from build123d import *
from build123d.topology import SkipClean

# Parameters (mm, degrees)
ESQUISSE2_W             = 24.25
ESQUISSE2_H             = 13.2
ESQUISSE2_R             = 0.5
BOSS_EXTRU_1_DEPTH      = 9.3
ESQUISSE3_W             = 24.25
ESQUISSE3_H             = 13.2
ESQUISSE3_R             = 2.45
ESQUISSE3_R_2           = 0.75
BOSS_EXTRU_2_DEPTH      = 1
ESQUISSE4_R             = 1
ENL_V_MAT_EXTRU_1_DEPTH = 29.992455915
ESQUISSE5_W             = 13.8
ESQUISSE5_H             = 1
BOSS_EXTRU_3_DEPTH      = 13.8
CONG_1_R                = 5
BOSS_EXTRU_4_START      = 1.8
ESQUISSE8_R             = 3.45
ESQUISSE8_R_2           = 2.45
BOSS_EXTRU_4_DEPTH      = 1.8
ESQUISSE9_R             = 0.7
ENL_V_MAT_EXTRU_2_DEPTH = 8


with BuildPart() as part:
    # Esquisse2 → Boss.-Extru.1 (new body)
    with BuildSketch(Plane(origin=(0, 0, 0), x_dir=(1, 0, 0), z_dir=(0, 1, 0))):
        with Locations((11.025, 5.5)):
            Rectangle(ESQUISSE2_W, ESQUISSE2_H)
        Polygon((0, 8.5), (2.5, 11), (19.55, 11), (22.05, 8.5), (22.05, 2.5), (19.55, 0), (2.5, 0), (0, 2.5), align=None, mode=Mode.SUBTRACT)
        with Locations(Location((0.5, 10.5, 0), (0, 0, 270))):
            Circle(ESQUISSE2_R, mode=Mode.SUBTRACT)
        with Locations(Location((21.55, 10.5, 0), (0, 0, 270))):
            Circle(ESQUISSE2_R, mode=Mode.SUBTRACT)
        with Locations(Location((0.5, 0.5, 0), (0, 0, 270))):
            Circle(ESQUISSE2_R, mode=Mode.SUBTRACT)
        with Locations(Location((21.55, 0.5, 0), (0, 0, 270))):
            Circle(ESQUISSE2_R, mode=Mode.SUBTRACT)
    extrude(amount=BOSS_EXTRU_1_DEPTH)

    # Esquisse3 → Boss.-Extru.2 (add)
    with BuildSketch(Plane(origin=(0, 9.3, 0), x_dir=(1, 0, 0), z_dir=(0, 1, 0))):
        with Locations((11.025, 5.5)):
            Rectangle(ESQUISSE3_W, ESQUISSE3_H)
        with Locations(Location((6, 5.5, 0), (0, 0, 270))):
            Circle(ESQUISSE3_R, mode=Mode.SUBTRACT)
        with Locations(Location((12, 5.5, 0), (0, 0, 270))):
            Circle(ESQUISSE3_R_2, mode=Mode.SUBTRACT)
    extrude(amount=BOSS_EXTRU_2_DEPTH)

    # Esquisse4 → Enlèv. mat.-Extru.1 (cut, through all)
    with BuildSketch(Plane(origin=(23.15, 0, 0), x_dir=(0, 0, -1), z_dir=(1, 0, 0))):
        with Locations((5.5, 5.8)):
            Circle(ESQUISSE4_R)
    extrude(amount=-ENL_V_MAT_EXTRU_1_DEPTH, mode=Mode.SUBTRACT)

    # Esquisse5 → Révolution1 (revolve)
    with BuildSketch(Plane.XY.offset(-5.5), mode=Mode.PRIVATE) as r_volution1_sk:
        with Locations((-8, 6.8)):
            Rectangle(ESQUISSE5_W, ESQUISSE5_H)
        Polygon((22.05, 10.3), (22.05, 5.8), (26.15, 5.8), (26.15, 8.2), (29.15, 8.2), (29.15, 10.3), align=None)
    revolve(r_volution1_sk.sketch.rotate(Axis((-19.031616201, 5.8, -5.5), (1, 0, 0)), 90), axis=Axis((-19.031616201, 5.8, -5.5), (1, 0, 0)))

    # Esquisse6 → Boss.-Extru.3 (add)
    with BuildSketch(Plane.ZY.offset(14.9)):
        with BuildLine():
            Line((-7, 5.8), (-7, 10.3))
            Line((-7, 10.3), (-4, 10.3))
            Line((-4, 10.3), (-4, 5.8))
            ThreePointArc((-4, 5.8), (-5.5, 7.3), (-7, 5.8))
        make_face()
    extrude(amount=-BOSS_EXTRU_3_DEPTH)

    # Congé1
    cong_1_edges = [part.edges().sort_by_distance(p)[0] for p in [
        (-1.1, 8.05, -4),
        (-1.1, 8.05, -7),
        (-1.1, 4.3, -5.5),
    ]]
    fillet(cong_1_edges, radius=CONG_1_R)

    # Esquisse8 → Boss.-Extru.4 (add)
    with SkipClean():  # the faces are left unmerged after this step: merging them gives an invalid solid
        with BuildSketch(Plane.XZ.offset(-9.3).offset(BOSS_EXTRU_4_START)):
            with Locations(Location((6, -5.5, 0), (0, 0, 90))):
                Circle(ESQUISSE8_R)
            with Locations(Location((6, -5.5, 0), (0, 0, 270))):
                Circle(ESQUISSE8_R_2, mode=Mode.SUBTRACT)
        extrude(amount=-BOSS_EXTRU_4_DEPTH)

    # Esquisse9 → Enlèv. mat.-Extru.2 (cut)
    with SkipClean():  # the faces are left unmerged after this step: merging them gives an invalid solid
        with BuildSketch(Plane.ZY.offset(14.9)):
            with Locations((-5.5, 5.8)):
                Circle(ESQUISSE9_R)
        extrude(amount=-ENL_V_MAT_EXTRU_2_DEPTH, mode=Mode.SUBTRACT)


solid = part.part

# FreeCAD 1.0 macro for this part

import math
import FreeCAD as App
import Part
import Sketcher
from FreeCAD import Vector


def edges_at(feature, points):
    """Names of the edges that pass closest to the given points."""
    edges = feature.Shape.Edges
    near = lambda p: min(range(len(edges)), key=lambda i: edges[i].distToShape(Part.Vertex(*p))[0])
    return sorted({f"Edge{near(p) + 1}" for p in points})

doc = App.newDocument("Part")
body = doc.addObject("PartDesign::Body", "Body")

sketch1 = body.newObject("Sketcher::SketchObject", "Sketch")
sketch1.AttachmentSupport = (doc.getObject("XZ_Plane"), [""])
sketch1.MapMode = "FlatFace"
sketch1.addGeometry(Part.LineSegment(Vector(-1.1, -12.1, 0), Vector(-1.1, 1.1, 0)), False)
sketch1.addGeometry(Part.LineSegment(Vector(-1.1, 1.1, 0), Vector(23.1, 1.1, 0)), False)
sketch1.addGeometry(Part.LineSegment(Vector(23.1, 1.1, 0), Vector(23.1, -12.1, 0)), False)
sketch1.addGeometry(Part.LineSegment(Vector(23.1, -12.1, 0), Vector(-1.1, -12.1, 0)), False)
sketch1.addGeometry(Part.Circle(Vector(0.5, -0.5, 0), Vector(0, 0, 1), 0.5), False)
sketch1.addGeometry(Part.Circle(Vector(21.6, -0.5, 0), Vector(0, 0, 1), 0.5), False)
sketch1.addGeometry(Part.Circle(Vector(0.5, -10.5, 0), Vector(0, 0, 1), 0.5), False)
sketch1.addGeometry(Part.LineSegment(Vector(0, -2.5, 0), Vector(0, -8.5, 0)), False)
sketch1.addGeometry(Part.LineSegment(Vector(0, -8.5, 0), Vector(2.5, -11, 0)), False)
sketch1.addGeometry(Part.LineSegment(Vector(2.5, -11, 0), Vector(19.6, -11, 0)), False)
sketch1.addGeometry(Part.LineSegment(Vector(19.6, -11, 0), Vector(22.1, -8.5, 0)), False)
sketch1.addGeometry(Part.LineSegment(Vector(22.1, -8.5, 0), Vector(22.1, -2.5, 0)), False)
sketch1.addGeometry(Part.LineSegment(Vector(22.1, -2.5, 0), Vector(19.6, 0, 0)), False)
sketch1.addGeometry(Part.LineSegment(Vector(19.6, 0, 0), Vector(2.5, 0, 0)), False)
sketch1.addGeometry(Part.LineSegment(Vector(2.5, 0, 0), Vector(0, -2.5, 0)), False)
sketch1.addGeometry(Part.Circle(Vector(21.6, -10.5, 0), Vector(0, 0, 1), 0.5), False)
sketch1.addConstraint(Sketcher.Constraint("Coincident", 0, 2, 1, 1))
sketch1.addConstraint(Sketcher.Constraint("Coincident", 1, 2, 2, 1))
sketch1.addConstraint(Sketcher.Constraint("Coincident", 2, 2, 3, 1))
sketch1.addConstraint(Sketcher.Constraint("Coincident", 3, 2, 0, 1))
sketch1.addConstraint(Sketcher.Constraint("Coincident", 7, 2, 8, 1))
sketch1.addConstraint(Sketcher.Constraint("Coincident", 8, 2, 9, 1))
sketch1.addConstraint(Sketcher.Constraint("Coincident", 9, 2, 10, 1))
sketch1.addConstraint(Sketcher.Constraint("Coincident", 10, 2, 11, 1))
sketch1.addConstraint(Sketcher.Constraint("Coincident", 11, 2, 12, 1))
sketch1.addConstraint(Sketcher.Constraint("Coincident", 12, 2, 13, 1))
sketch1.addConstraint(Sketcher.Constraint("Coincident", 13, 2, 14, 1))
sketch1.addConstraint(Sketcher.Constraint("Coincident", 14, 2, 7, 1))
sketch1.addConstraint(Sketcher.Constraint("Vertical", 0))
sketch1.addConstraint(Sketcher.Constraint("Horizontal", 1))
sketch1.addConstraint(Sketcher.Constraint("Vertical", 2))
sketch1.addConstraint(Sketcher.Constraint("Horizontal", 3))
sketch1.addConstraint(Sketcher.Constraint("Vertical", 7))
sketch1.addConstraint(Sketcher.Constraint("Horizontal", 9))
sketch1.addConstraint(Sketcher.Constraint("Vertical", 11))
sketch1.addConstraint(Sketcher.Constraint("Horizontal", 13))
sketch1.addConstraint(Sketcher.Constraint("Equal", 4, 5))
sketch1.addConstraint(Sketcher.Constraint("Equal", 5, 6))
sketch1.addConstraint(Sketcher.Constraint("Equal", 6, 15))
sketch1.addConstraint(Sketcher.Constraint("PointOnObject", 7, 2, -2))
sketch1.addConstraint(Sketcher.Constraint("PointOnObject", 12, 2, -1))
sketch1.addConstraint(Sketcher.Constraint("Perpendicular", 8, 10))
sketch1.addConstraint(Sketcher.Constraint("Perpendicular", 10, 12))
sketch1.addConstraint(Sketcher.Constraint("Perpendicular", 12, 14))
sketch1.addConstraint(Sketcher.Constraint("Horizontal", 4, 3, 5, 3))
sketch1.addConstraint(Sketcher.Constraint("Horizontal", 6, 3, 15, 3))
sketch1.addConstraint(Sketcher.Constraint("Horizontal", 7, 2, 10, 2))
sketch1.addConstraint(Sketcher.Constraint("Horizontal", 11, 2, 14, 2))
sketch1.addConstraint(Sketcher.Constraint("Vertical", 4, 3, 6, 3))
sketch1.addConstraint(Sketcher.Constraint("Vertical", 5, 3, 15, 3))
sketch1.addConstraint(Sketcher.Constraint("Vertical", 9, 2, 12, 2))
sketch1.addConstraint(Sketcher.Constraint("Vertical", 8, 2, 13, 2))
sketch1.addConstraint(Sketcher.Constraint("Diameter", 4, 1.0))
sketch1.addConstraint(Sketcher.Constraint("DistanceY", 7, 2, 7, 1, 6.0))
sketch1.addConstraint(Sketcher.Constraint("DistanceY", 0, 1, 0, 2, 13.2))
sketch1.addConstraint(Sketcher.Constraint("DistanceY", 8, 2, -1, 1, 11.0))
sketch1.addConstraint(Sketcher.Constraint("DistanceY", 6, 3, 4, 3, 10.0))
sketch1.addConstraint(Sketcher.Constraint("DistanceY", 6, 3, 7, 2, 2.0))
sketch1.addConstraint(Sketcher.Constraint("DistanceX", 6, 3, 8, 2, 2.0))
sketch1.addConstraint(Sketcher.Constraint("DistanceX", 9, 2, 15, 3, 2.0))
sketch1.addConstraint(Sketcher.Constraint("DistanceX", 1, 1, 1, 2, 24.25))
sketch1.addConstraint(Sketcher.Constraint("DistanceX", 9, 1, 9, 2, 17.05))
sketch1.addConstraint(Sketcher.Constraint("DistanceX", 0, 2, -1, 1, 1.1))
sketch1.addConstraint(Sketcher.Constraint("DistanceY", -1, 1, 0, 2, 1.1))
pad1 = body.newObject("PartDesign::Pad", "Pad")
pad1.Profile = sketch1
pad1.Length = 9.3
pad1.Reversed = True

sketch2 = body.newObject("Sketcher::SketchObject", "Sketch001")
sketch2.AttachmentSupport = (doc.getObject("XZ_Plane"), [""])
sketch2.MapMode = "FlatFace"
sketch2.AttachmentOffset = App.Placement(Vector(0, 0, -9.3), App.Rotation())
sketch2.addGeometry(Part.LineSegment(Vector(-1.1, -12.1, 0), Vector(-1.1, 1.1, 0)), False)
sketch2.addGeometry(Part.LineSegment(Vector(-1.1, 1.1, 0), Vector(23.1, 1.1, 0)), False)
sketch2.addGeometry(Part.LineSegment(Vector(23.1, 1.1, 0), Vector(23.1, -12.1, 0)), False)
sketch2.addGeometry(Part.LineSegment(Vector(23.1, -12.1, 0), Vector(-1.1, -12.1, 0)), False)
sketch2.addGeometry(Part.Circle(Vector(6, -5.5, 0), Vector(0, 0, 1), 2.5), False)
sketch2.addGeometry(Part.Circle(Vector(12, -5.5, 0), Vector(0, 0, 1), 0.8), False)
sketch2.addConstraint(Sketcher.Constraint("Coincident", 0, 2, 1, 1))
sketch2.addConstraint(Sketcher.Constraint("Coincident", 1, 2, 2, 1))
sketch2.addConstraint(Sketcher.Constraint("Coincident", 2, 2, 3, 1))
sketch2.addConstraint(Sketcher.Constraint("Coincident", 3, 2, 0, 1))
sketch2.addConstraint(Sketcher.Constraint("Vertical", 0))
sketch2.addConstraint(Sketcher.Constraint("Horizontal", 1))
sketch2.addConstraint(Sketcher.Constraint("Vertical", 2))
sketch2.addConstraint(Sketcher.Constraint("Horizontal", 3))
sketch2.addConstraint(Sketcher.Constraint("Horizontal", 4, 3, 5, 3))
sketch2.addConstraint(Sketcher.Constraint("Diameter", 4, 4.9))
sketch2.addConstraint(Sketcher.Constraint("Diameter", 5, 1.5))
sketch2.addConstraint(Sketcher.Constraint("DistanceY", 0, 1, 0, 2, 13.2))
sketch2.addConstraint(Sketcher.Constraint("DistanceX", -1, 1, 4, 3, 6.0))
sketch2.addConstraint(Sketcher.Constraint("DistanceX", -1, 1, 5, 3, 12.0))
sketch2.addConstraint(Sketcher.Constraint("DistanceX", 1, 1, 1, 2, 24.25))
sketch2.addConstraint(Sketcher.Constraint("DistanceY", 4, 3, -1, 1, 5.5))
sketch2.addConstraint(Sketcher.Constraint("DistanceX", 0, 2, -1, 1, 1.1))
sketch2.addConstraint(Sketcher.Constraint("DistanceY", -1, 1, 0, 2, 1.1))
pad2 = body.newObject("PartDesign::Pad", "Pad001")
pad2.Profile = sketch2
pad2.Length = 1
pad2.Reversed = True

sketch3 = body.newObject("Sketcher::SketchObject", "Sketch002")
sketch3.AttachmentSupport = (doc.getObject("YZ_Plane"), [""])
sketch3.MapMode = "FlatFace"
sketch3.AttachmentOffset = App.Placement(Vector(0, 0, 23.15), App.Rotation())
sketch3.addGeometry(Part.Circle(Vector(5.8, -5.5, 0), Vector(0, 0, 1), 1), False)
sketch3.addConstraint(Sketcher.Constraint("Diameter", 0, 2.0))
sketch3.addConstraint(Sketcher.Constraint("DistanceX", -1, 1, 0, 3, 5.8))
sketch3.addConstraint(Sketcher.Constraint("DistanceY", 0, 3, -1, 1, 5.5))
pocket1 = body.newObject("PartDesign::Pocket", "Pocket")
pocket1.Profile = sketch3
pocket1.Type = "ThroughAll"

sketch4 = body.newObject("Sketcher::SketchObject", "Sketch003")
sketch4.AttachmentSupport = (doc.getObject("XY_Plane"), [""])
sketch4.MapMode = "FlatFace"
sketch4.AttachmentOffset = App.Placement(Vector(0, 0, -5.5), App.Rotation())
sketch4.addGeometry(Part.LineSegment(Vector(-14.9, 7.3, 0), Vector(-14.9, 6.3, 0)), False)
sketch4.addGeometry(Part.LineSegment(Vector(-14.9, 6.3, 0), Vector(-1.1, 6.3, 0)), False)
sketch4.addGeometry(Part.LineSegment(Vector(-1.1, 6.3, 0), Vector(-1.1, 7.3, 0)), False)
sketch4.addGeometry(Part.LineSegment(Vector(-1.1, 7.3, 0), Vector(-14.9, 7.3, 0)), False)
sketch4.addGeometry(Part.LineSegment(Vector(22.1, 10.3, 0), Vector(22.1, 5.8, 0)), False)
sketch4.addGeometry(Part.LineSegment(Vector(22.1, 5.8, 0), Vector(26.1, 5.8, 0)), False)
sketch4.addGeometry(Part.LineSegment(Vector(26.1, 5.8, 0), Vector(26.1, 8.2, 0)), False)
sketch4.addGeometry(Part.LineSegment(Vector(26.1, 8.2, 0), Vector(29.1, 8.2, 0)), False)
sketch4.addGeometry(Part.LineSegment(Vector(29.1, 8.2, 0), Vector(29.1, 10.3, 0)), False)
sketch4.addGeometry(Part.LineSegment(Vector(29.1, 10.3, 0), Vector(22.1, 10.3, 0)), False)
sketch4.addGeometry(Part.LineSegment(Vector(-14.9, 5.8, 0), Vector(29.1, 5.8, 0)), True)
sketch4.addConstraint(Sketcher.Constraint("Coincident", 0, 2, 1, 1))
sketch4.addConstraint(Sketcher.Constraint("Coincident", 1, 2, 2, 1))
sketch4.addConstraint(Sketcher.Constraint("Coincident", 2, 2, 3, 1))
sketch4.addConstraint(Sketcher.Constraint("Coincident", 3, 2, 0, 1))
sketch4.addConstraint(Sketcher.Constraint("Coincident", 4, 2, 5, 1))
sketch4.addConstraint(Sketcher.Constraint("Coincident", 5, 2, 6, 1))
sketch4.addConstraint(Sketcher.Constraint("Coincident", 6, 2, 7, 1))
sketch4.addConstraint(Sketcher.Constraint("Coincident", 7, 2, 8, 1))
sketch4.addConstraint(Sketcher.Constraint("Coincident", 8, 2, 9, 1))
sketch4.addConstraint(Sketcher.Constraint("Coincident", 9, 2, 4, 1))
sketch4.addConstraint(Sketcher.Constraint("Vertical", 0))
sketch4.addConstraint(Sketcher.Constraint("Horizontal", 1))
sketch4.addConstraint(Sketcher.Constraint("Vertical", 2))
sketch4.addConstraint(Sketcher.Constraint("Horizontal", 3))
sketch4.addConstraint(Sketcher.Constraint("Vertical", 4))
sketch4.addConstraint(Sketcher.Constraint("Horizontal", 5))
sketch4.addConstraint(Sketcher.Constraint("Vertical", 6))
sketch4.addConstraint(Sketcher.Constraint("Horizontal", 7))
sketch4.addConstraint(Sketcher.Constraint("Vertical", 8))
sketch4.addConstraint(Sketcher.Constraint("Horizontal", 9))
sketch4.addConstraint(Sketcher.Constraint("Horizontal", 10))
sketch4.addConstraint(Sketcher.Constraint("Horizontal", 5, 2, 10, 1))
sketch4.addConstraint(Sketcher.Constraint("Vertical", 3, 2, 10, 1))
sketch4.addConstraint(Sketcher.Constraint("Vertical", 8, 2, 10, 2))
sketch4.addConstraint(Sketcher.Constraint("DistanceX", 7, 1, 7, 2, 3.0))
sketch4.addConstraint(Sketcher.Constraint("DistanceY", 0, 2, 0, 1, 1.0))
sketch4.addConstraint(Sketcher.Constraint("DistanceX", 1, 1, 1, 2, 13.8))
sketch4.addConstraint(Sketcher.Constraint("DistanceX", 5, 1, 5, 2, 4.1))
sketch4.addConstraint(Sketcher.Constraint("DistanceY", 4, 2, 4, 1, 4.5))
sketch4.addConstraint(Sketcher.Constraint("DistanceY", 6, 1, 6, 2, 2.4))
sketch4.addConstraint(Sketcher.Constraint("DistanceY", 2, 2, 8, 2, 3.0))
sketch4.addConstraint(Sketcher.Constraint("DistanceX", 10, 1, 10, 2, 44.05))
sketch4.addConstraint(Sketcher.Constraint("DistanceX", 0, 2, -1, 1, 14.9))
sketch4.addConstraint(Sketcher.Constraint("DistanceY", -1, 1, 0, 2, 6.3))
revolution = body.newObject("PartDesign::Revolution", "Revolution")
revolution.Profile = sketch4
revolution.ReferenceAxis = (sketch4, ["Axis0"])
revolution.Angle = 360

sketch5 = body.newObject("Sketcher::SketchObject", "Sketch004")
sketch5.AttachmentSupport = (doc.getObject("YZ_Plane"), [""])
sketch5.MapMode = "FlatFace"
sketch5.AttachmentOffset = App.Placement(Vector(0, 0, -14.9), App.Rotation())
sketch5.addGeometry(Part.LineSegment(Vector(10.3, -7, 0), Vector(5.8, -7, 0)), False)
sketch5.addGeometry(Part.ArcOfCircle(Part.Circle(Vector(5.8, -5.5, 0), Vector(0, 0, 1), 1.5), math.radians(-90), math.radians(90)), False)
sketch5.addGeometry(Part.LineSegment(Vector(5.8, -4, 0), Vector(10.3, -4, 0)), False)
sketch5.addGeometry(Part.LineSegment(Vector(10.3, -4, 0), Vector(10.3, -7, 0)), False)
sketch5.addConstraint(Sketcher.Constraint("Tangent", 0, 2, 1, 1))
sketch5.addConstraint(Sketcher.Constraint("Tangent", 1, 2, 2, 1))
sketch5.addConstraint(Sketcher.Constraint("Coincident", 2, 2, 3, 1))
sketch5.addConstraint(Sketcher.Constraint("Coincident", 3, 2, 0, 1))
sketch5.addConstraint(Sketcher.Constraint("Horizontal", 0))
sketch5.addConstraint(Sketcher.Constraint("Horizontal", 2))
sketch5.addConstraint(Sketcher.Constraint("Vertical", 3))
sketch5.addConstraint(Sketcher.Constraint("Radius", 1, 1.5))
sketch5.addConstraint(Sketcher.Constraint("DistanceX", 0, 2, 0, 1, 4.5))
sketch5.addConstraint(Sketcher.Constraint("DistanceY", 0, 2, -1, 1, 7.0))
sketch5.addConstraint(Sketcher.Constraint("DistanceX", -1, 1, 1, 3, 5.8))
pad3 = body.newObject("PartDesign::Pad", "Pad002")
pad3.Profile = sketch5
pad3.Length = 13.8
doc.recompute()

fillet = body.newObject("PartDesign::Fillet", "Fillet")
fillet.Base = (pad3, edges_at(pad3, [(-1.1, 8.05, -4), (-1.1, 8.05, -7), (-1.1, 4.3, -5.5)]))
fillet.Radius = 5

sketch6 = body.newObject("Sketcher::SketchObject", "Sketch005")
sketch6.AttachmentSupport = (doc.getObject("XZ_Plane"), [""])
sketch6.MapMode = "FlatFace"
sketch6.AttachmentOffset = App.Placement(Vector(0, 0, -7.5), App.Rotation())
sketch6.addGeometry(Part.Circle(Vector(6, -5.5, 0), Vector(0, 0, 1), 3.5), False)
sketch6.addGeometry(Part.Circle(Vector(6, -5.5, 0), Vector(0, 0, 1), 2.5), False)
sketch6.addConstraint(Sketcher.Constraint("Coincident", 1, 3, 0, 3))
sketch6.addConstraint(Sketcher.Constraint("Diameter", 0, 6.9))
sketch6.addConstraint(Sketcher.Constraint("Diameter", 1, 4.9))
sketch6.addConstraint(Sketcher.Constraint("DistanceX", -1, 1, 0, 3, 6.0))
sketch6.addConstraint(Sketcher.Constraint("DistanceY", 0, 3, -1, 1, 5.5))
pad4 = body.newObject("PartDesign::Pad", "Pad003")
pad4.Profile = sketch6
pad4.Length = 1.8
pad4.Reversed = True

sketch7 = body.newObject("Sketcher::SketchObject", "Sketch006")
sketch7.AttachmentSupport = (doc.getObject("YZ_Plane"), [""])
sketch7.MapMode = "FlatFace"
sketch7.AttachmentOffset = App.Placement(Vector(0, 0, -14.9), App.Rotation())
sketch7.addGeometry(Part.Circle(Vector(5.8, -5.5, 0), Vector(0, 0, 1), 0.7), False)
sketch7.addConstraint(Sketcher.Constraint("Diameter", 0, 1.4))
sketch7.addConstraint(Sketcher.Constraint("DistanceX", -1, 1, 0, 3, 5.8))
sketch7.addConstraint(Sketcher.Constraint("DistanceY", 0, 3, -1, 1, 5.5))
pocket2 = body.newObject("PartDesign::Pocket", "Pocket001")
pocket2.Profile = sketch7
pocket2.Length = 8
pocket2.Reversed = True

doc.recompute()
